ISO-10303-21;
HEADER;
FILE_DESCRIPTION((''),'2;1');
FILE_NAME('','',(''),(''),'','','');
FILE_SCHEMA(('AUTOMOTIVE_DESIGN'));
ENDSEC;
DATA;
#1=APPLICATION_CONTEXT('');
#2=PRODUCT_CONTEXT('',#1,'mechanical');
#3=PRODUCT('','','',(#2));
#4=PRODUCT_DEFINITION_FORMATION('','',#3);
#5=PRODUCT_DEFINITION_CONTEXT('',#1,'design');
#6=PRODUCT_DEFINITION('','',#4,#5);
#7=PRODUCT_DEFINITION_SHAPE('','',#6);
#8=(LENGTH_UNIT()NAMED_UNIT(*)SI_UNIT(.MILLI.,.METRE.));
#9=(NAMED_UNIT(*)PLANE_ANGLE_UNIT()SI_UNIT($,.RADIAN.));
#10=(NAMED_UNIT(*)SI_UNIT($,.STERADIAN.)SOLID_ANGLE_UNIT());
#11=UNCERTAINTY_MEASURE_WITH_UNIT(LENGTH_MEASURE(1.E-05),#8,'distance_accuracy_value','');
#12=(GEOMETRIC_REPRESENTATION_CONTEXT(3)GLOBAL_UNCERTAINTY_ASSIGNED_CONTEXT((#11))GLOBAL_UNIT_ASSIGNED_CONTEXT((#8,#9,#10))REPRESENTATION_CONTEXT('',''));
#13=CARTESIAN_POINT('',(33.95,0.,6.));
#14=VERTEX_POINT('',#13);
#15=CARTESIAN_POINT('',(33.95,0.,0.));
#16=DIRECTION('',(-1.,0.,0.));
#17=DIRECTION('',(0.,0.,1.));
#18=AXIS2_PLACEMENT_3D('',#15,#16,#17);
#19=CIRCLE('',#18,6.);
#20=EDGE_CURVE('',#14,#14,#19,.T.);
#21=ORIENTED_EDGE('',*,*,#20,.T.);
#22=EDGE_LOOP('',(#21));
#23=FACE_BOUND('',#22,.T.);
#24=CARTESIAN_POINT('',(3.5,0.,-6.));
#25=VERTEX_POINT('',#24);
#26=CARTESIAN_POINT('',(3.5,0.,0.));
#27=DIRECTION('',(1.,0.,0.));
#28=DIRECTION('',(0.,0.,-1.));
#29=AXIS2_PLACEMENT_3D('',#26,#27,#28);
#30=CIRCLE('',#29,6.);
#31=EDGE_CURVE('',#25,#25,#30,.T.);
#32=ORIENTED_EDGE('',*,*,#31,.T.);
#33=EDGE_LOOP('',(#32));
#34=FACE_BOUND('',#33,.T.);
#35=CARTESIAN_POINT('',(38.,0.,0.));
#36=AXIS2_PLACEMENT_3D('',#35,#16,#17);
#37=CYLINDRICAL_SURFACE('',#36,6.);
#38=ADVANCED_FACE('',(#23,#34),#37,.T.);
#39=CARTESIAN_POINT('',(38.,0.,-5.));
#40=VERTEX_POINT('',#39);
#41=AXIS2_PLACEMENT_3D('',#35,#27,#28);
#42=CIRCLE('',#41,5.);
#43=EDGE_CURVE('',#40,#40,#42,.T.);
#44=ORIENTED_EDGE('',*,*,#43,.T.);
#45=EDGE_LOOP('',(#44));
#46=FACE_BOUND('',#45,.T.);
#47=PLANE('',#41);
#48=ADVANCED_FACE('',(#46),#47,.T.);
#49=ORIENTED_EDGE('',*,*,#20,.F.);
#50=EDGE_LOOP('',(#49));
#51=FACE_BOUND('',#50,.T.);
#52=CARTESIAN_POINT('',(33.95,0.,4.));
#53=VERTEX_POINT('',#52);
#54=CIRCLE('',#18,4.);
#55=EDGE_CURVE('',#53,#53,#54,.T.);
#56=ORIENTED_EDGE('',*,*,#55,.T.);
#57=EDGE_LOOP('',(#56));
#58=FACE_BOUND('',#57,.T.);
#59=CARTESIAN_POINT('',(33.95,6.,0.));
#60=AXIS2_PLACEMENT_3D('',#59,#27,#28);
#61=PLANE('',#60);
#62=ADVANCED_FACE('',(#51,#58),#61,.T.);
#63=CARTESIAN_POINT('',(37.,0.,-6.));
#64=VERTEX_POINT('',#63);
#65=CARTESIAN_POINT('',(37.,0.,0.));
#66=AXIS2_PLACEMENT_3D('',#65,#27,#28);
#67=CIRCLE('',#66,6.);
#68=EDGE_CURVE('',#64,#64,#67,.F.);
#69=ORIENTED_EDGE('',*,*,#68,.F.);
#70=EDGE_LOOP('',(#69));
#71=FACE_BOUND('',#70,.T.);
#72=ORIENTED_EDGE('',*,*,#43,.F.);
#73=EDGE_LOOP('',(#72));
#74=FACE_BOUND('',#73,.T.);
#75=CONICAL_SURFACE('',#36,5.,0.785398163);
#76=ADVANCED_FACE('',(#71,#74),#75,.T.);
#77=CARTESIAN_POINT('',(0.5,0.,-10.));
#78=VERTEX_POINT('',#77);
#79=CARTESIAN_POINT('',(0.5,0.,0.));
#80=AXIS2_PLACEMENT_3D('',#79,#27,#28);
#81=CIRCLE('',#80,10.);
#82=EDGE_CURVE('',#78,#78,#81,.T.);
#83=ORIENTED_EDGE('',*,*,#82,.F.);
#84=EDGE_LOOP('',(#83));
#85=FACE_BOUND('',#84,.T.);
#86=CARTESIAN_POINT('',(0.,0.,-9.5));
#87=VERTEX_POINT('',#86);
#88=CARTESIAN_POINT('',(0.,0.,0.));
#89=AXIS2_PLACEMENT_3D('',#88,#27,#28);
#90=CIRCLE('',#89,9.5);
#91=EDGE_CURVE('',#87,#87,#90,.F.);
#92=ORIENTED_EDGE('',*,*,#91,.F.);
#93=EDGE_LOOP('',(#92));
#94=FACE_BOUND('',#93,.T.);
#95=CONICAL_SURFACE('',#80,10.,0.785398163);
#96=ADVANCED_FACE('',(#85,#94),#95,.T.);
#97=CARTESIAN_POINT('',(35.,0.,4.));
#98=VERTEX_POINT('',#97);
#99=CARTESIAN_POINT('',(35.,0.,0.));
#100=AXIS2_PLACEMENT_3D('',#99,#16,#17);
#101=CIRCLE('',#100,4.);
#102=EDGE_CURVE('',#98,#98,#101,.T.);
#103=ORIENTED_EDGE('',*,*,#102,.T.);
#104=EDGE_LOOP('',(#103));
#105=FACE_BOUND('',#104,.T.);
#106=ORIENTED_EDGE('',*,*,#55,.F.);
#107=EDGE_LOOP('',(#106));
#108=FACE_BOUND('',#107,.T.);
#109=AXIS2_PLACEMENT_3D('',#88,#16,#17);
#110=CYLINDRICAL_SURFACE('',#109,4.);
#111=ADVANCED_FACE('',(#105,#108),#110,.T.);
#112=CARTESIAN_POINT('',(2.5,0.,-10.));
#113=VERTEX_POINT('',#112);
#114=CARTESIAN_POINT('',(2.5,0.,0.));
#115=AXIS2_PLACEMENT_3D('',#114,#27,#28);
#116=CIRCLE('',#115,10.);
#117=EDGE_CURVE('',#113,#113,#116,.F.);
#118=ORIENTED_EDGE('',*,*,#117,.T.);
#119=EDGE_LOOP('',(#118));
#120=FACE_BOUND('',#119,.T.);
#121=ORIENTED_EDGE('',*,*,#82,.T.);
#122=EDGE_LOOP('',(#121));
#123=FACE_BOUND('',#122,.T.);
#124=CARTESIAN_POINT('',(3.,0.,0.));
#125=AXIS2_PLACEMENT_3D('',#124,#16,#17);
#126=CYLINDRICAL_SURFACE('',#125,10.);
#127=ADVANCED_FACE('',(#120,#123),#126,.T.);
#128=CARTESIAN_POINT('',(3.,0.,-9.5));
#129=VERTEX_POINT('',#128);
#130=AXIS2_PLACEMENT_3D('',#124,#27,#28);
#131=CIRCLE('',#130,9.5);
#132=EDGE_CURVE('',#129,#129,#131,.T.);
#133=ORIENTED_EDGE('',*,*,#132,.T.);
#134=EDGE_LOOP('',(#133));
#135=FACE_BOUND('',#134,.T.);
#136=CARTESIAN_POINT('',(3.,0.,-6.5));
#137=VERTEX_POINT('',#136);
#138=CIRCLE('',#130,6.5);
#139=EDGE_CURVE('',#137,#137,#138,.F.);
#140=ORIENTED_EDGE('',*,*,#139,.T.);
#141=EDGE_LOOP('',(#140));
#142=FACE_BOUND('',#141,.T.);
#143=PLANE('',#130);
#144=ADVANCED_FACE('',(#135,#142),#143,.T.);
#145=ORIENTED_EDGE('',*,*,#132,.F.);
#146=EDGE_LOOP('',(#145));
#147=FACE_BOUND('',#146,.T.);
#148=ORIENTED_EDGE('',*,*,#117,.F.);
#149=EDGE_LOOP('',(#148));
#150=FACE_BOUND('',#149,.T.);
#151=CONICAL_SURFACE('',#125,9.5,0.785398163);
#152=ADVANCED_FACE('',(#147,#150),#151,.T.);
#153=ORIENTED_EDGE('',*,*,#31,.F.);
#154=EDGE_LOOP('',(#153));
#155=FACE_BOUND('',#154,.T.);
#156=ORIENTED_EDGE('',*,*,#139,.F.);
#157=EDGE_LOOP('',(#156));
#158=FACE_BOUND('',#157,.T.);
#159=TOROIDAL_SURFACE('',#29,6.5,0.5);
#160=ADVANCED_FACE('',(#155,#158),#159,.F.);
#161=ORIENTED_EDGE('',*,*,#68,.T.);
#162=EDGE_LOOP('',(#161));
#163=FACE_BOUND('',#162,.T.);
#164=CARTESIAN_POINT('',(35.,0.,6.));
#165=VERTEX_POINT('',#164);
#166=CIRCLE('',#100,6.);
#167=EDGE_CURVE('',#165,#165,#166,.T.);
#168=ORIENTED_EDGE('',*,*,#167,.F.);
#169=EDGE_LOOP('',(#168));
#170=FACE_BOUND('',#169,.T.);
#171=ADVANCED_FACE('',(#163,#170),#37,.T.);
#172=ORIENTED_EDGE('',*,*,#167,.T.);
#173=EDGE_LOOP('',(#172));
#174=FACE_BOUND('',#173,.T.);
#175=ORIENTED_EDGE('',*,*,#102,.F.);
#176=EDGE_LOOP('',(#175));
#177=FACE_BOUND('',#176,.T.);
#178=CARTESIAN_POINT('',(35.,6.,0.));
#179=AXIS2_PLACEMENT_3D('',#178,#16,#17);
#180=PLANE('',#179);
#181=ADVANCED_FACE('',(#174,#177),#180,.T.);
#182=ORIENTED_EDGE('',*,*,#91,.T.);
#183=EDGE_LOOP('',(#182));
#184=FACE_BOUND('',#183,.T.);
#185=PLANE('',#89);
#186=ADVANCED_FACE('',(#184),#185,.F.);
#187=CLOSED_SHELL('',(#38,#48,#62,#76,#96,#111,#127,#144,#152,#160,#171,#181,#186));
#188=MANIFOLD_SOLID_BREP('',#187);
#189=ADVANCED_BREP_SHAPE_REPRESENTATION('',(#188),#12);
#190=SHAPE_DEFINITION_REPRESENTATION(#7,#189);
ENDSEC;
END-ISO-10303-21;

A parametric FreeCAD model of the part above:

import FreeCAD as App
import Part
import Sketcher

V = App.Vector


def edges_at(feature, points):
    """Names of the edges that pass closest to the given points."""
    edges = feature.Shape.Edges
    near = lambda p: min(range(len(edges)), key=lambda i: edges[i].distToShape(Part.Vertex(*p))[0])
    return sorted({f"Edge{near(p) + 1}" for p in points})


def add_polygon(sketch, points):
    """Adds a closed chain of lines whose ends are joined by coincident constraints."""
    first, n = sketch.GeometryCount, len(points)
    for a, b in zip(points, points[1:] + points[:1]):
        sketch.addGeometry(Part.LineSegment(App.Vector(*a, 0), App.Vector(*b, 0)), False)
    for i in range(n):
        sketch.addConstraint(Sketcher.Constraint("Coincident", first + i, 2, first + (i + 1) % n, 1))

doc = App.newDocument("Part")
body = doc.addObject("PartDesign::Body", "Body")

sketch1 = doc.addObject("Sketcher::SketchObject", "Sketch")
body.addObject(sketch1)
sketch1.AttachmentSupport = (doc.YZ_Plane, [""])
sketch1.MapMode = "FlatFace"
sketch1.addGeometry(Part.Circle(V(0, 0, 0), V(0, 0, 1), 10), False)
sketch1.addConstraint([
    Sketcher.Constraint("Coincident", 0, 3, -1, 1),
    Sketcher.Constraint("Diameter", 0, 20.0),
])
pad1 = doc.addObject("PartDesign::Pad", "Pad")
body.addObject(pad1)
pad1.Profile = sketch1
pad1.Length = 3

sketch2 = doc.addObject("Sketcher::SketchObject", "Sketch001")
body.addObject(sketch2)
sketch2.AttachmentSupport = (doc.YZ_Plane, [""])
sketch2.MapMode = "FlatFace"
sketch2.AttachmentOffset = App.Placement(V(0, 0, 3), App.Rotation())
sketch2.addGeometry(Part.Circle(V(0, 0, 0), V(0, 0, 1), 6), False)
sketch2.addConstraint([
    Sketcher.Constraint("Coincident", 0, 3, -1, 1),
    Sketcher.Constraint("Diameter", 0, 12.0),
])
pad2 = doc.addObject("PartDesign::Pad", "Pad001")
body.addObject(pad2)
pad2.Profile = sketch2
pad2.Length = 35

sketch3 = doc.addObject("Sketcher::SketchObject", "Sketch002")
body.addObject(sketch3)
sketch3.AttachmentSupport = (doc.XY_Plane, [""])
sketch3.MapMode = "FlatFace"
add_polygon(sketch3, [(34, 6), (34, 4), (35, 4), (35, 6)])
sketch3.addConstraint([
    Sketcher.Constraint("Vertical", 0),
    Sketcher.Constraint("Horizontal", 1),
    Sketcher.Constraint("Vertical", 2),
    Sketcher.Constraint("Horizontal", 3),
    Sketcher.Constraint("DistanceY", 0, 2, 0, 1, 2.0),
    Sketcher.Constraint("DistanceY", -1, 1, 0, 2, 4.0),
    Sketcher.Constraint("DistanceX", -1, 1, 1, 2, 35.0),
    Sketcher.Constraint("DistanceX", 1, 1, 1, 2, 1.05),
])
groove = doc.addObject("PartDesign::Groove", "Groove")
body.addObject(groove)
groove.Profile = sketch3
groove.ReferenceAxis = (sketch3, ["H_Axis"])
groove.Angle = 360
doc.recompute()

chamfer = doc.addObject("PartDesign::Chamfer", "Chamfer")
body.addObject(chamfer)
chamfer.Base = (groove, edges_at(groove, [(38, 0, 6)]))
chamfer.Size = 1
doc.recompute()

chamfer2 = doc.addObject("PartDesign::Chamfer", "Chamfer001")
body.addObject(chamfer2)
chamfer2.Base = (chamfer, edges_at(chamfer, [(0, 0, 10), (3, 0, 10)]))
chamfer2.Size = 0.5
doc.recompute()

fillet = doc.addObject("PartDesign::Fillet", "Fillet")
body.addObject(fillet)
fillet.Base = (chamfer2, edges_at(chamfer2, [(3, 0, 6)]))
fillet.Radius = 0.5

doc.recompute()
